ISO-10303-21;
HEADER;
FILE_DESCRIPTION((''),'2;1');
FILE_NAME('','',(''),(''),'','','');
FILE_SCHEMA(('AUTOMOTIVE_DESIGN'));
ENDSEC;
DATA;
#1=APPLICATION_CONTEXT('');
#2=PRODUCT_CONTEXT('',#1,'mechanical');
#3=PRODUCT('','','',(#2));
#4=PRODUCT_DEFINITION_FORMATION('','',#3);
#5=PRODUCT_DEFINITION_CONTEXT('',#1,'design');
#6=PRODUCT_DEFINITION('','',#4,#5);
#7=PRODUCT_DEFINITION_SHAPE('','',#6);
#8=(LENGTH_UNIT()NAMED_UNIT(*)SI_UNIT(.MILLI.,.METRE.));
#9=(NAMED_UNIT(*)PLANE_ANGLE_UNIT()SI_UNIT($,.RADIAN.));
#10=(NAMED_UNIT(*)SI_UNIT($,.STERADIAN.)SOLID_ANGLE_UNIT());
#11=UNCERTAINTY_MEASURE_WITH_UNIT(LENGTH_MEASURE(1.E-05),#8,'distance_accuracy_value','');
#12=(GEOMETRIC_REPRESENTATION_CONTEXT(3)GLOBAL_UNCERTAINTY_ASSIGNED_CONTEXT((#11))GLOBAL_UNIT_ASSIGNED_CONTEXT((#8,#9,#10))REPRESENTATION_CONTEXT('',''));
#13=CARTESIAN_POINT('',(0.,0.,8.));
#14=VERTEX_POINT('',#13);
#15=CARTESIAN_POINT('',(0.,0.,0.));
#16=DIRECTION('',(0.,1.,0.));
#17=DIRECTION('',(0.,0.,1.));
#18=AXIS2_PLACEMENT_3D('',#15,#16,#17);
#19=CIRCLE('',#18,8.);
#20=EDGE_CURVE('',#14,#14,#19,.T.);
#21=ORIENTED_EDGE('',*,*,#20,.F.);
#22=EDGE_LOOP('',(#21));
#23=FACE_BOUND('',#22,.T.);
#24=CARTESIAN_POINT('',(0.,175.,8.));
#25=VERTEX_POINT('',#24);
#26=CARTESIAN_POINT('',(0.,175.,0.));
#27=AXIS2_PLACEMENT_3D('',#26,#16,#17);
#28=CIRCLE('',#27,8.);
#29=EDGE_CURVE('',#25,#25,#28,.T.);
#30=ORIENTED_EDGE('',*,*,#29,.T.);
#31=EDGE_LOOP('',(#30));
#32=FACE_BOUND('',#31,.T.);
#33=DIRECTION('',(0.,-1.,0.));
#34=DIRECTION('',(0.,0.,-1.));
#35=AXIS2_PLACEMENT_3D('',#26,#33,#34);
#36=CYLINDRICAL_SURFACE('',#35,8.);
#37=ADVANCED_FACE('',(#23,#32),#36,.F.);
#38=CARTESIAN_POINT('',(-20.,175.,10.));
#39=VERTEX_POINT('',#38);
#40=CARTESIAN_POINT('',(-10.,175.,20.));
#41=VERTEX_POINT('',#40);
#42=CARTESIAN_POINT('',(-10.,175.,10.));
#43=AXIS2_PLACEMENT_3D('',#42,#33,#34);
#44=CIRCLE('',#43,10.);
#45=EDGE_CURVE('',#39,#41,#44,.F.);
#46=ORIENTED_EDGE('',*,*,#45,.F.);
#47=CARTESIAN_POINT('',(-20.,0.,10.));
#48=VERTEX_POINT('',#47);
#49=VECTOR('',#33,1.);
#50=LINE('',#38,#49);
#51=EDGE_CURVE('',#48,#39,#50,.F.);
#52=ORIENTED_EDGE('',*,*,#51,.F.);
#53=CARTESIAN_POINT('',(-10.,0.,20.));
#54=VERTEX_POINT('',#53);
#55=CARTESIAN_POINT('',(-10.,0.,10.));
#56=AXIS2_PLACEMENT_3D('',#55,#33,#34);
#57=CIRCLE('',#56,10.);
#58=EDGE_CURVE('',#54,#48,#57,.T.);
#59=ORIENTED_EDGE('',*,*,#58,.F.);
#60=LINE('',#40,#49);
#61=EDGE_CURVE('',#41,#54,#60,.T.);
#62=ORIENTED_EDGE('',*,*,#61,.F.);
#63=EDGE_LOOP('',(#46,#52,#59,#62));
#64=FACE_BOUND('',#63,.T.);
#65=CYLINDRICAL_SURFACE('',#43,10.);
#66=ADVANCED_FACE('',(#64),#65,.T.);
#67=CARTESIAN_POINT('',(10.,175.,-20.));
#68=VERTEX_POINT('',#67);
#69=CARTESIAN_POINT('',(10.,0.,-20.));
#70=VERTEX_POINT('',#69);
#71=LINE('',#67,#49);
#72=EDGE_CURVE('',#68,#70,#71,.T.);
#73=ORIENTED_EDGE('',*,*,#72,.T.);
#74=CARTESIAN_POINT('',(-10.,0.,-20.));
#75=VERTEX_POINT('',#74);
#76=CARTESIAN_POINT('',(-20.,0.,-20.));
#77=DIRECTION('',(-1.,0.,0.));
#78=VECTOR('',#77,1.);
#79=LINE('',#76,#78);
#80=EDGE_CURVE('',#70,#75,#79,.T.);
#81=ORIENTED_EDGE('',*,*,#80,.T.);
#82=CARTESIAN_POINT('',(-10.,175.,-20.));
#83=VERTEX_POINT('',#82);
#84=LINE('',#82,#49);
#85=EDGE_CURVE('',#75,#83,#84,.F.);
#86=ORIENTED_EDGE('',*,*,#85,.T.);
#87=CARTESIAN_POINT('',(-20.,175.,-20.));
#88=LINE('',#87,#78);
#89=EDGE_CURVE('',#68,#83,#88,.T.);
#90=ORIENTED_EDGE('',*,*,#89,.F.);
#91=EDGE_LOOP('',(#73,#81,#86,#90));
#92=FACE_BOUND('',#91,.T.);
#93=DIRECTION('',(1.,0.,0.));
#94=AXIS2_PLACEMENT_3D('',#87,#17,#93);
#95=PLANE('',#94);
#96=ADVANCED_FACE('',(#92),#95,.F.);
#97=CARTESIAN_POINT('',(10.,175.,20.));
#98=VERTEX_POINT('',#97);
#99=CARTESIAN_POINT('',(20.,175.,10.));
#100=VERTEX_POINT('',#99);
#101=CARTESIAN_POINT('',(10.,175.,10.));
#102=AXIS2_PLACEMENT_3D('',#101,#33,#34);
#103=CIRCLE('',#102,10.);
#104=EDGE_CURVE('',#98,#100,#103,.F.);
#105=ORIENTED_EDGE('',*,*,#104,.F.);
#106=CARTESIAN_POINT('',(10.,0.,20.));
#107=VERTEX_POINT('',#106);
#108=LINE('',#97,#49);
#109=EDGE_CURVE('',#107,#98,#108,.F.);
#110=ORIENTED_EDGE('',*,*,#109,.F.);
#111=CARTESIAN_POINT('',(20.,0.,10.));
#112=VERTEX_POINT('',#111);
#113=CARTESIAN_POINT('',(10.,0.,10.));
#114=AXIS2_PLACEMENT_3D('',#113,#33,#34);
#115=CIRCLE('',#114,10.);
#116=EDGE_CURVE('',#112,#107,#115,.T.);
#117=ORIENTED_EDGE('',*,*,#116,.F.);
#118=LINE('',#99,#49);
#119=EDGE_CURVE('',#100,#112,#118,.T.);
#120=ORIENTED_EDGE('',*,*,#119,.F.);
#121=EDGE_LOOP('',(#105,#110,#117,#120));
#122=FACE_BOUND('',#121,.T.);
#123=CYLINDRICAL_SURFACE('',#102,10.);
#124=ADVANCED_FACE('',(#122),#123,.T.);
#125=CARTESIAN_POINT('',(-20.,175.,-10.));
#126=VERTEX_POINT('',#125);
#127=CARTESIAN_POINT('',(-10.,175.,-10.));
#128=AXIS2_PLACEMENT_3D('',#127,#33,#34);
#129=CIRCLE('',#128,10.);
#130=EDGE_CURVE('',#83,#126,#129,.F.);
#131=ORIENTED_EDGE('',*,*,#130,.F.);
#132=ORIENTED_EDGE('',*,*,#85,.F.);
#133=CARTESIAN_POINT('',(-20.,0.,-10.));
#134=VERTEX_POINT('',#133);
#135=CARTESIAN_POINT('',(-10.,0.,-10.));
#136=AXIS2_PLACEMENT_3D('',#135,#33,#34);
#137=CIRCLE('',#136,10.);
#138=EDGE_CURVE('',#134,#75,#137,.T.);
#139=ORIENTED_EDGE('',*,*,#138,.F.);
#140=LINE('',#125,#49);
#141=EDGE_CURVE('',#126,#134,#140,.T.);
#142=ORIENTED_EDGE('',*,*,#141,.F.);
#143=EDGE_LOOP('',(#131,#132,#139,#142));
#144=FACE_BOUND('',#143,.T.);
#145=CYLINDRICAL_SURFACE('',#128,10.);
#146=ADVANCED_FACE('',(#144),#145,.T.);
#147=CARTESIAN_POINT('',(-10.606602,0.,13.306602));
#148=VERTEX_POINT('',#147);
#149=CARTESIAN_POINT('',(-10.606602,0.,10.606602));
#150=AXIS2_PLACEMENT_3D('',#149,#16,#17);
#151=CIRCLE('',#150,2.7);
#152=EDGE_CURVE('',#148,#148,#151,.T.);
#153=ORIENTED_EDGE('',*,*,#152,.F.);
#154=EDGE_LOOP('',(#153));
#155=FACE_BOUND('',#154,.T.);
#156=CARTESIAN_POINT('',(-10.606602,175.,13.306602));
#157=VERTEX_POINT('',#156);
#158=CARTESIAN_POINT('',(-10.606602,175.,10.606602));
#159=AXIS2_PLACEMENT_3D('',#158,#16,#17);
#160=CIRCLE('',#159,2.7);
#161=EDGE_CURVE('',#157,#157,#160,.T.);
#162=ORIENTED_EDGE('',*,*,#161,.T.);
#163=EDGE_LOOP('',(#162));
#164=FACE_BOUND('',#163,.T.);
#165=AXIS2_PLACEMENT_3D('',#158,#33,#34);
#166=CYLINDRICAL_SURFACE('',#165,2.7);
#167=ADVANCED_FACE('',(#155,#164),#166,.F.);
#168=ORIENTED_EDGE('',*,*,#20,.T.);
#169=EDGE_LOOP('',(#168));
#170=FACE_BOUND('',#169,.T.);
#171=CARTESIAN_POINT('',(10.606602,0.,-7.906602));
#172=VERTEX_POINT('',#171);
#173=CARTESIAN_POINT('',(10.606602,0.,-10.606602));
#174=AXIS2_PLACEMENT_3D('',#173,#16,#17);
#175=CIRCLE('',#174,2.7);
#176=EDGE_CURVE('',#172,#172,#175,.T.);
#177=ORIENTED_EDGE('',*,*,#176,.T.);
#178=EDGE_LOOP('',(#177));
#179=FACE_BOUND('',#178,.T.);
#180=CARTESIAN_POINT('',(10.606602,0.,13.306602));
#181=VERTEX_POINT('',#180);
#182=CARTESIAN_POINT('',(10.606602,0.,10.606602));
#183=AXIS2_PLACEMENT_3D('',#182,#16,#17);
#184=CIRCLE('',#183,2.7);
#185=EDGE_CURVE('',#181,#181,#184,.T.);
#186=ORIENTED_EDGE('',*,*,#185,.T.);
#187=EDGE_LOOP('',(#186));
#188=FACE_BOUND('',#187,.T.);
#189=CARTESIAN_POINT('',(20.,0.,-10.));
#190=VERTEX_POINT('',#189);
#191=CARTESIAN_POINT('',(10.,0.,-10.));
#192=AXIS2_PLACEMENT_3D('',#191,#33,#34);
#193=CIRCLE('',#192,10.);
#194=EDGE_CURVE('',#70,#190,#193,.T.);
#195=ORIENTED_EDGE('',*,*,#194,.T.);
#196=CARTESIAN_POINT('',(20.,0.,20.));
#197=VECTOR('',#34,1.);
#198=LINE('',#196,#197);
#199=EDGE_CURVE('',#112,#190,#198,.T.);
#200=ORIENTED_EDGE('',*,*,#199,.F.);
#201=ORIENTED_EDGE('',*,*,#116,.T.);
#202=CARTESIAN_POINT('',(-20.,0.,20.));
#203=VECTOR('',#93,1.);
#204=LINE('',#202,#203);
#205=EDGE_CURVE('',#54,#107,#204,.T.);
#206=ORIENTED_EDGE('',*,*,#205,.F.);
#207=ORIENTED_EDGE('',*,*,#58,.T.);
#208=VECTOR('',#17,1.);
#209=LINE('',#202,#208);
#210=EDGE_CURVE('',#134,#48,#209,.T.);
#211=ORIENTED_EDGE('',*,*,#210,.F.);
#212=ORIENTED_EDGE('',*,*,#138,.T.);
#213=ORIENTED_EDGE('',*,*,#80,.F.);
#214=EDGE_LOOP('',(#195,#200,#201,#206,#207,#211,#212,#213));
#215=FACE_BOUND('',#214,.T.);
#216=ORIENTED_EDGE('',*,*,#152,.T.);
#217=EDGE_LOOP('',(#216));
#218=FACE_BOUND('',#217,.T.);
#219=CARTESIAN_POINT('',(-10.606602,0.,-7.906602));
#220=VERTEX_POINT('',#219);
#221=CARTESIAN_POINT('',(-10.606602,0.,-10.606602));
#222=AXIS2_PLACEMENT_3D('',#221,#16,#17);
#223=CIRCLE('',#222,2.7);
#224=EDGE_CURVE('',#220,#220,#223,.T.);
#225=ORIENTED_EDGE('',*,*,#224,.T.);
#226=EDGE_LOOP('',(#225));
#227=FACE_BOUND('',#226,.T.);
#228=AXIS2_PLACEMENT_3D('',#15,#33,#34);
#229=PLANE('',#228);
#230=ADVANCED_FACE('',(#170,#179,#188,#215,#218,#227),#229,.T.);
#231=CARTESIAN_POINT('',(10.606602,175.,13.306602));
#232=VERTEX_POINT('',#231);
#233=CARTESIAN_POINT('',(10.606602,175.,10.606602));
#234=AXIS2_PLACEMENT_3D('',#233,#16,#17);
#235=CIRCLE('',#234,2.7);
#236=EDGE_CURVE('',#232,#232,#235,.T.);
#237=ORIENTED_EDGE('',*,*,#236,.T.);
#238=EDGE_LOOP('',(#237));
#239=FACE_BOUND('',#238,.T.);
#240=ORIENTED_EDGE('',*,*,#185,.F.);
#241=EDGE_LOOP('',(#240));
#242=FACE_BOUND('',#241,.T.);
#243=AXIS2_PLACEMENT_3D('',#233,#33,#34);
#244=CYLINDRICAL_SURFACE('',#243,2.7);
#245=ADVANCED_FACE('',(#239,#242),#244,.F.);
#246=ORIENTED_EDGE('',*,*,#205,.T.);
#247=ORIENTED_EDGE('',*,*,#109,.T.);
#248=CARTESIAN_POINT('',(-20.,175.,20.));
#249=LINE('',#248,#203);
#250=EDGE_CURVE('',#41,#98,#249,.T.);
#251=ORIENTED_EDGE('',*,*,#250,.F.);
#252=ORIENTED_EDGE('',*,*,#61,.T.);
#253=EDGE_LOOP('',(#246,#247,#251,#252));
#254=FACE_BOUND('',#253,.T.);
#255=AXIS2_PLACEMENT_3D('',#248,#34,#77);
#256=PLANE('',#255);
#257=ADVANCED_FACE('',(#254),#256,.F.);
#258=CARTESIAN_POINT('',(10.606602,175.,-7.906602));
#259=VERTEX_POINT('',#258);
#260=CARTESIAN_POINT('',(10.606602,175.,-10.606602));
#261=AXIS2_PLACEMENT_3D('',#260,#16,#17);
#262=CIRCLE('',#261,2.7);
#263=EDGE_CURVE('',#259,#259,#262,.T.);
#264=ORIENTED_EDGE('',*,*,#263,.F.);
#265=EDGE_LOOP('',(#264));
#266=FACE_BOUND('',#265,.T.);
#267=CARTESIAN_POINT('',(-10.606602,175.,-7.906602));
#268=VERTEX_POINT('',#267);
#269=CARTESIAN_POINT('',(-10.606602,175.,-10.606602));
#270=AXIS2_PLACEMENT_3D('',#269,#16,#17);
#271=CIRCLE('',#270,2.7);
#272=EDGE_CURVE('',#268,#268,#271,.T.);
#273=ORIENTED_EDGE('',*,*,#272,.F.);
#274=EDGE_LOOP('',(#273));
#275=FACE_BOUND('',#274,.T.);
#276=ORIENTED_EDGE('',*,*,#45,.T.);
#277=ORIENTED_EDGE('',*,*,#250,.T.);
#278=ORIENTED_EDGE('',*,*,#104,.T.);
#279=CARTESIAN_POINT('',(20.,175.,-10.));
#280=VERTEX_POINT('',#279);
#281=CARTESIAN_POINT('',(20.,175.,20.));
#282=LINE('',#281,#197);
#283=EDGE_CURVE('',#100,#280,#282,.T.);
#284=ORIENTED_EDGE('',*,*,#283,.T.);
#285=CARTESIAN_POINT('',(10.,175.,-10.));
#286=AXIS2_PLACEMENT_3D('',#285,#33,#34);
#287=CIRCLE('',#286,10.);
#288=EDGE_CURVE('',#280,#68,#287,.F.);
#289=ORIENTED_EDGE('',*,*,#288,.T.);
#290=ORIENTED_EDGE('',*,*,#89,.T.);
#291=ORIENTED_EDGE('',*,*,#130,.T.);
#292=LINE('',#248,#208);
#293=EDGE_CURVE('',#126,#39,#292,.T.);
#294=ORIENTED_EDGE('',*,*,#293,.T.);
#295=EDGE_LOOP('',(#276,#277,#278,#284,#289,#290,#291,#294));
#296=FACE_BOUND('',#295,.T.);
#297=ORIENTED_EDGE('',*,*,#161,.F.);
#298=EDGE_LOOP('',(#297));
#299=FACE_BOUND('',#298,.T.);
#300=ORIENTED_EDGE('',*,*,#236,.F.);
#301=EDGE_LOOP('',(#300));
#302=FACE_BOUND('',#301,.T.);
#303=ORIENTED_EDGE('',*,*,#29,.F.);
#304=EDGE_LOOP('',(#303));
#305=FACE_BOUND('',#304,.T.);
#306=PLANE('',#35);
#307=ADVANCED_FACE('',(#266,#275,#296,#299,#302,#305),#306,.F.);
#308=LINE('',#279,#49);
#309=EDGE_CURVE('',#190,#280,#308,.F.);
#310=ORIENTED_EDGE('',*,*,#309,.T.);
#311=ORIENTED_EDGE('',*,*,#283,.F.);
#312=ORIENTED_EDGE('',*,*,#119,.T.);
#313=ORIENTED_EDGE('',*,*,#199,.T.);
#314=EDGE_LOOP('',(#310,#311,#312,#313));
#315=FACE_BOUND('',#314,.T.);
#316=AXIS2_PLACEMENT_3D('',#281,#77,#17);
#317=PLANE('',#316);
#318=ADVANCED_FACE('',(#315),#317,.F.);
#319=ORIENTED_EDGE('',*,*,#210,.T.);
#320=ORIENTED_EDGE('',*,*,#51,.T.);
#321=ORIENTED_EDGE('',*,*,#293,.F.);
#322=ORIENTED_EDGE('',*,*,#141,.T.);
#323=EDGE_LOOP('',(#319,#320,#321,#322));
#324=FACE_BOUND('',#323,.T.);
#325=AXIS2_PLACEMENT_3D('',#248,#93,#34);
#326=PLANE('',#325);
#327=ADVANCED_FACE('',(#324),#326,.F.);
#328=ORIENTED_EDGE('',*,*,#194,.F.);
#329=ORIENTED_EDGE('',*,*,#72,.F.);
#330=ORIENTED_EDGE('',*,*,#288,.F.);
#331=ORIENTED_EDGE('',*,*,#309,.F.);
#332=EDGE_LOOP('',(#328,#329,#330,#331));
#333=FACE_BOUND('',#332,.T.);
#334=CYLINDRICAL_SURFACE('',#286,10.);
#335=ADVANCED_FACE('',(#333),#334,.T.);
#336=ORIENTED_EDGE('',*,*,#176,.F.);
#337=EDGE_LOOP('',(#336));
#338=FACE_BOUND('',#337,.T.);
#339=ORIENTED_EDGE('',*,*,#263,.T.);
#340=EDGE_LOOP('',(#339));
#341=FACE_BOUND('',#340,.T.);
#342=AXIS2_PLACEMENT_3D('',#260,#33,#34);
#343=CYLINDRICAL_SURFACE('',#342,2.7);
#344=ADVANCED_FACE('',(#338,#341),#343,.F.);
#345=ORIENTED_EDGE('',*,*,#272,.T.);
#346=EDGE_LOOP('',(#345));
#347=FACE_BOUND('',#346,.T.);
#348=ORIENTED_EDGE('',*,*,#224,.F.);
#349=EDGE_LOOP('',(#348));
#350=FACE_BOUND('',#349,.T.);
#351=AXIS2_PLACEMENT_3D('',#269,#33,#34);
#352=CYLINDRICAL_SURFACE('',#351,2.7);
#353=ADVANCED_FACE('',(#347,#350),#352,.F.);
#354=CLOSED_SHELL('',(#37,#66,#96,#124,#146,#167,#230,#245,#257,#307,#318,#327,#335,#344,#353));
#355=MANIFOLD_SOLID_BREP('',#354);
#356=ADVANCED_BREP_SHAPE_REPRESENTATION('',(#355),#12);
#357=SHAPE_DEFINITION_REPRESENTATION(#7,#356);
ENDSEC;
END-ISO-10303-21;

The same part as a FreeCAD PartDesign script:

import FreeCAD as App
import Part
import Sketcher


def edges_at(feature, points):
    """Names of the edges that pass closest to the given points."""
    edges = feature.Shape.Edges
    near = lambda p: min(range(len(edges)), key=lambda i: edges[i].distToShape(Part.Vertex(*p))[0])
    return sorted({f"Edge{near(p) + 1}" for p in points})

doc = App.newDocument("Part")
body = doc.addObject("PartDesign::Body", "Body")

sketch1 = body.newObject("Sketcher::SketchObject", "Sketch")
sketch1.AttachmentSupport = (doc.getObject("XZ_Plane"), [""])
sketch1.MapMode = "FlatFace"
sketch1.addGeometry(Part.LineSegment(App.Vector(-20, -20, 0), App.Vector(-20, 20, 0)), False)
sketch1.addGeometry(Part.LineSegment(App.Vector(-20, 20, 0), App.Vector(20, 20, 0)), False)
sketch1.addGeometry(Part.LineSegment(App.Vector(20, 20, 0), App.Vector(20, -20, 0)), False)
sketch1.addGeometry(Part.LineSegment(App.Vector(20, -20, 0), App.Vector(-20, -20, 0)), False)
sketch1.addGeometry(Part.Circle(App.Vector(-10.6, 10.6, 0), App.Vector(0, 0, 1), 2.7), False)
sketch1.addGeometry(Part.Circle(App.Vector(10.6, 10.6, 0), App.Vector(0, 0, 1), 2.7), False)
sketch1.addGeometry(Part.Circle(App.Vector(-10.6, -10.6, 0), App.Vector(0, 0, 1), 2.7), False)
sketch1.addGeometry(Part.Circle(App.Vector(0, 0, 0), App.Vector(0, 0, 1), 8), False)
sketch1.addGeometry(Part.Circle(App.Vector(10.6, -10.6, 0), App.Vector(0, 0, 1), 2.7), False)
sketch1.addConstraint(Sketcher.Constraint("Coincident", 0, 2, 1, 1))
sketch1.addConstraint(Sketcher.Constraint("Coincident", 1, 2, 2, 1))
sketch1.addConstraint(Sketcher.Constraint("Coincident", 2, 2, 3, 1))
sketch1.addConstraint(Sketcher.Constraint("Coincident", 3, 2, 0, 1))
sketch1.addConstraint(Sketcher.Constraint("Vertical", 0))
sketch1.addConstraint(Sketcher.Constraint("Horizontal", 1))
sketch1.addConstraint(Sketcher.Constraint("Vertical", 2))
sketch1.addConstraint(Sketcher.Constraint("Horizontal", 3))
sketch1.addConstraint(Sketcher.Constraint("Coincident", 7, 3, -1, 1))
sketch1.addConstraint(Sketcher.Constraint("Equal", 4, 5))
sketch1.addConstraint(Sketcher.Constraint("Equal", 5, 6))
sketch1.addConstraint(Sketcher.Constraint("Equal", 6, 8))
sketch1.addConstraint(Sketcher.Constraint("Symmetric", 5, 3, 6, 3, -1, 1))
sketch1.addConstraint(Sketcher.Constraint("Symmetric", 4, 3, 8, 3, -1, 1))
sketch1.addConstraint(Sketcher.Constraint("Symmetric", 0, 2, 2, 2, -1, 1))
sketch1.addConstraint(Sketcher.Constraint("Symmetric", 4, 3, 5, 3, -2))
sketch1.addConstraint(Sketcher.Constraint("Equal", 3, 0))
sketch1.addConstraint(Sketcher.Constraint("Diameter", 7, 16.0))
sketch1.addConstraint(Sketcher.Constraint("Diameter", 4, 5.4))
sketch1.addConstraint(Sketcher.Constraint("DistanceX", 1, 1, 1, 2, 40.0))
sketch1.addConstraint(Sketcher.Constraint("DistanceX", 4, 3, -1, 1, 10.606602))
sketch1.addConstraint(Sketcher.Constraint("DistanceY", -1, 1, 4, 3, 10.606602))
pad1 = body.newObject("PartDesign::Pad", "Pad")
pad1.Profile = sketch1
pad1.Length = 175
pad1.Reversed = True
doc.recompute()

fillet = body.newObject("PartDesign::Fillet", "Fillet")
fillet.Base = (pad1, edges_at(pad1, [
    (20, 87.5, 20),
    (-20, 87.5, 20),
    (-20, 87.5, -20),
    (20, 87.5, -20),
]))
fillet.Radius = 10

doc.recompute()
